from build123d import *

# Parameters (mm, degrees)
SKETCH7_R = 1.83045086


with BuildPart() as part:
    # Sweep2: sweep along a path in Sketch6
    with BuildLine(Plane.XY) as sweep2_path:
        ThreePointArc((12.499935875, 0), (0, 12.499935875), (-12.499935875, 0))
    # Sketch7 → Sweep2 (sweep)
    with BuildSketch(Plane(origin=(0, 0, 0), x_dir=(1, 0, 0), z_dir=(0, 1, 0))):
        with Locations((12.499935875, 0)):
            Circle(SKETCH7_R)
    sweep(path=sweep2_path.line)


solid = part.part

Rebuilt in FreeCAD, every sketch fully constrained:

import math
import FreeCAD as App
import Part
import Sketcher
from FreeCAD import Vector

doc = App.newDocument("Part")
body = doc.addObject("PartDesign::Body", "Body")

# Sketch on XZ plane
sketch1 = doc.addObject("Sketcher::SketchObject", "Sketch")
body.addObject(sketch1)
sketch1.AttachmentSupport = (doc.XZ_Plane, [""])
sketch1.MapMode = "FlatFace"
sketch1.addGeometry(Part.Circle(Vector(12.499936, 0, 0), Vector(0, 0, 1), 1.830451), False)
sketch1.addConstraint([
    Sketcher.Constraint("PointOnObject", 0, 3, -1),
    Sketcher.Constraint("Diameter", 0, 3.660902),
    Sketcher.Constraint("DistanceX", -1, 1, 0, 3, 12.499936),
])

# Sketch on XY plane
sketch2 = doc.addObject("Sketcher::SketchObject", "Sketch001")
body.addObject(sketch2)
sketch2.AttachmentSupport = (doc.XY_Plane, [""])
sketch2.MapMode = "FlatFace"
sketch2.addGeometry(Part.ArcOfCircle(Part.Circle(Vector(0, 0, 0), Vector(0, 0, 1), 12.499936), math.radians(0), math.radians(180)), False)
sketch2.addConstraint([
    Sketcher.Constraint("Coincident", 0, 3, -1, 1),
    Sketcher.Constraint("PointOnObject", 0, 1, -1),
    Sketcher.Constraint("PointOnObject", 0, 2, -1),
    Sketcher.Constraint("Radius", 0, 12.499936),
])
doc.recompute()

additivepipe = doc.addObject("PartDesign::AdditivePipe", "AdditivePipe")
body.addObject(additivepipe)
additivepipe.Profile = sketch1
additivepipe.Spine = (sketch2, ["Edge1"])

doc.recompute()
